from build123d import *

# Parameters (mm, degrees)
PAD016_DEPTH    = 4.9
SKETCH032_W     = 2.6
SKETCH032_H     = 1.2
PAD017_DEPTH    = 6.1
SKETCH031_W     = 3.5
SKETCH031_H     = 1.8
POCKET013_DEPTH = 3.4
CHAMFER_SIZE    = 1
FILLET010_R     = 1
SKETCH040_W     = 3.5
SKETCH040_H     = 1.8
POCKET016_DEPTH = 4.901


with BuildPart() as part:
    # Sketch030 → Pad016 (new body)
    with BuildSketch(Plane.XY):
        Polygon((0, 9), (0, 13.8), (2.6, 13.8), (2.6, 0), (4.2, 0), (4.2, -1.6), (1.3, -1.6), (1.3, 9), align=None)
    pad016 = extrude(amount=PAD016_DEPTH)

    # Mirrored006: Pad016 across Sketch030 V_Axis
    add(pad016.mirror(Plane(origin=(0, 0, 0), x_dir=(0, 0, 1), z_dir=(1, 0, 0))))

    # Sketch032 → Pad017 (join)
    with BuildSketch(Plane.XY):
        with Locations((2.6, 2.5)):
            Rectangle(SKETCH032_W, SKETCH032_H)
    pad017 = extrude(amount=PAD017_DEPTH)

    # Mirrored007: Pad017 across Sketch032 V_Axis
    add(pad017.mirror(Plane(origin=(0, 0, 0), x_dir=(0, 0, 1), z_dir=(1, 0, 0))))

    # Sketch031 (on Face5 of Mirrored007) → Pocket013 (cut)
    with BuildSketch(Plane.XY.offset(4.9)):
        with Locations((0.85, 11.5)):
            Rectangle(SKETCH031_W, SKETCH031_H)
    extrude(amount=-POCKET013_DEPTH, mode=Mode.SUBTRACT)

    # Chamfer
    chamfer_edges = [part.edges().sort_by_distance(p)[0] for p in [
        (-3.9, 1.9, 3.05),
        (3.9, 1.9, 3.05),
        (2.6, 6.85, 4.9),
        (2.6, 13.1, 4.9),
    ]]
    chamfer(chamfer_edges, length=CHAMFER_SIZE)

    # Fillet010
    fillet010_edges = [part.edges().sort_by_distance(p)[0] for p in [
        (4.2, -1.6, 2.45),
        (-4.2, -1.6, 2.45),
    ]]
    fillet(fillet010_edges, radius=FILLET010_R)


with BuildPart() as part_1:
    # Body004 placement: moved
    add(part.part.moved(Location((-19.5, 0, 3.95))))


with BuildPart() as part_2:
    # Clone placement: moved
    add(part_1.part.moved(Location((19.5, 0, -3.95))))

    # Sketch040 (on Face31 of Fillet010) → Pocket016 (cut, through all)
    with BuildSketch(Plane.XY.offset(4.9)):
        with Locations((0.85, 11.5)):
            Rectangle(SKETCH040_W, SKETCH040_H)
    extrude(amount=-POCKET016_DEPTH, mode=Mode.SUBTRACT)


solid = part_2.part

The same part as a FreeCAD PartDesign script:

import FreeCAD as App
import Part
import Sketcher
from FreeCAD import Vector


def edges_at(feature, points):
    """Names of the edges that pass closest to the given points."""
    edges = feature.Shape.Edges
    near = lambda p: min(range(len(edges)), key=lambda i: edges[i].distToShape(Part.Vertex(*p))[0])
    return sorted({f"Edge{near(p) + 1}" for p in points})


def add_polygon(sketch, points):
    """Adds a closed chain of lines whose ends are joined by coincident constraints."""
    first, n = sketch.GeometryCount, len(points)
    for a, b in zip(points, points[1:] + points[:1]):
        sketch.addGeometry(Part.LineSegment(App.Vector(*a, 0), App.Vector(*b, 0)), False)
    for i in range(n):
        sketch.addConstraint(Sketcher.Constraint("Coincident", first + i, 2, first + (i + 1) % n, 1))

doc = App.newDocument("Part")
body = doc.addObject("PartDesign::Body", "Body")

# Sketch on XY plane
sketch1 = doc.addObject("Sketcher::SketchObject", "Sketch")
body.addObject(sketch1)
sketch1.AttachmentSupport = (doc.XY_Plane, [""])
sketch1.MapMode = "FlatFace"
add_polygon(sketch1, [(0, 13.8), (0, 9), (1.3, 9), (1.3, -1.6), (4.2, -1.6), (4.2, 0), (2.6, 0), (2.6, 13.8)])  # lines 0-7
sketch1.addConstraint([
    Sketcher.Constraint("Vertical", 0),
    Sketcher.Constraint("Horizontal", 1),
    Sketcher.Constraint("Vertical", 2),
    Sketcher.Constraint("Horizontal", 3),
    Sketcher.Constraint("Vertical", 4),
    Sketcher.Constraint("Horizontal", 5),
    Sketcher.Constraint("Vertical", 6),
    Sketcher.Constraint("Horizontal", 7),
    Sketcher.Constraint("PointOnObject", 0, 2, -2),
    Sketcher.Constraint("PointOnObject", 4, 2, -1),
    Sketcher.Constraint("Equal", 5, 4),
    Sketcher.Constraint("DistanceX", 1, 1, 1, 2, 1.3),
    Sketcher.Constraint("DistanceX", 3, 1, 3, 2, 2.9),
    Sketcher.Constraint("DistanceX", 5, 2, 5, 1, 1.6),
    Sketcher.Constraint("DistanceY", 0, 2, 0, 1, 4.8),
    Sketcher.Constraint("DistanceY", 2, 2, 2, 1, 10.6),
])
pad1 = doc.addObject("PartDesign::Pad", "Pad")
body.addObject(pad1)
pad1.Profile = sketch1
pad1.Length = 4.9
doc.recompute()

mirrored = doc.addObject("PartDesign::Mirrored", "Mirrored")
body.addObject(mirrored)
mirrored.Originals = [pad1]
mirrored.MirrorPlane = (doc.YZ_Plane, [""])
body.Tip = mirrored

# Sketch on XY plane
sketch2 = doc.addObject("Sketcher::SketchObject", "Sketch001")
body.addObject(sketch2)
sketch2.AttachmentSupport = (doc.XY_Plane, [""])
sketch2.MapMode = "FlatFace"
add_polygon(sketch2, [(1.3, 3.1), (1.3, 1.9), (3.9, 1.9), (3.9, 3.1)])  # lines 0-3
sketch2.addConstraint([
    Sketcher.Constraint("Vertical", 0),
    Sketcher.Constraint("Horizontal", 1),
    Sketcher.Constraint("Vertical", 2),
    Sketcher.Constraint("Horizontal", 3),
    Sketcher.Constraint("DistanceX", 1, 1, 1, 2, 2.6),
    Sketcher.Constraint("DistanceY", 0, 2, 0, 1, 1.2),
    Sketcher.Constraint("DistanceX", -1, 1, 0, 2, 1.3),
    Sketcher.Constraint("DistanceY", -1, 1, 0, 2, 1.9),
])
pad2 = doc.addObject("PartDesign::Pad", "Pad001")
body.addObject(pad2)
pad2.Profile = sketch2
pad2.Length = 6.1
doc.recompute()

mirrored2 = doc.addObject("PartDesign::Mirrored", "Mirrored001")
body.addObject(mirrored2)
mirrored2.Originals = [pad2]
mirrored2.MirrorPlane = (doc.YZ_Plane, [""])
body.Tip = mirrored2

# Sketch on XY plane
sketch3 = doc.addObject("Sketcher::SketchObject", "Sketch002")
body.addObject(sketch3)
sketch3.AttachmentSupport = (doc.XY_Plane, [""])
sketch3.MapMode = "FlatFace"
sketch3.AttachmentOffset = App.Placement(Vector(0, 0, 4.9), App.Rotation())
add_polygon(sketch3, [(-0.9, 12.4), (-0.9, 10.6), (2.6, 10.6), (2.6, 12.4)])  # lines 0-3
sketch3.addConstraint([
    Sketcher.Constraint("Vertical", 0),
    Sketcher.Constraint("Horizontal", 1),
    Sketcher.Constraint("Vertical", 2),
    Sketcher.Constraint("Horizontal", 3),
    Sketcher.Constraint("DistanceX", 1, 1, 1, 2, 3.5),
    Sketcher.Constraint("DistanceY", 0, 2, 0, 1, 1.8),
    Sketcher.Constraint("DistanceX", 0, 2, -1, 1, 0.9),
    Sketcher.Constraint("DistanceY", -1, 1, 0, 2, 10.6),
])
pocket1 = doc.addObject("PartDesign::Pocket", "Pocket")
body.addObject(pocket1)
pocket1.Profile = sketch3
pocket1.Length = 3.4
doc.recompute()

chamfer = doc.addObject("PartDesign::Chamfer", "Chamfer")
body.addObject(chamfer)
chamfer.Base = (pocket1, edges_at(pocket1, [
    (-3.9, 1.9, 3.05),
    (3.9, 1.9, 3.05),
    (2.6, 6.85, 4.9),
    (2.6, 13.1, 4.9),
]))
chamfer.Size = 1
doc.recompute()

fillet = doc.addObject("PartDesign::Fillet", "Fillet")
body.addObject(fillet)
fillet.Base = (chamfer, edges_at(chamfer, [(4.2, -1.6, 2.45), (-4.2, -1.6, 2.45)]))
fillet.Radius = 1
body2 = doc.addObject("PartDesign::Body", "Body001")
doc.recompute()

body.Placement = App.Placement(Vector(-19.5, 0, 3.95), App.Rotation(Vector(0, 0, 1), 0))
boolean = doc.addObject("PartDesign::Boolean", "Boolean")
body2.addObject(boolean)
boolean.Type = "Fuse"
boolean.addObjects([body])
body3 = doc.addObject("PartDesign::Body", "Body002")
doc.recompute()

body2.Placement = App.Placement(Vector(19.5, 0, -3.95), App.Rotation(Vector(0, 0, 1), 0))
boolean2 = doc.addObject("PartDesign::Boolean", "Boolean001")
body3.addObject(boolean2)
boolean2.Type = "Fuse"
boolean2.addObjects([body2])

# Sketch on XY plane
sketch4 = doc.addObject("Sketcher::SketchObject", "Sketch003")
body3.addObject(sketch4)
sketch4.AttachmentSupport = (doc.getObject("XY_Plane002"), [""])
sketch4.MapMode = "FlatFace"
sketch4.AttachmentOffset = App.Placement(Vector(0, 0, 4.9), App.Rotation())
add_polygon(sketch4, [(-0.9, 12.4), (-0.9, 10.6), (2.6, 10.6), (2.6, 12.4)])  # lines 0-3
sketch4.addConstraint([
    Sketcher.Constraint("Vertical", 0),
    Sketcher.Constraint("Horizontal", 1),
    Sketcher.Constraint("Vertical", 2),
    Sketcher.Constraint("Horizontal", 3),
    Sketcher.Constraint("DistanceX", 1, 1, 1, 2, 3.5),
    Sketcher.Constraint("DistanceY", 0, 2, 0, 1, 1.8),
    Sketcher.Constraint("DistanceX", 0, 2, -1, 1, 0.9),
    Sketcher.Constraint("DistanceY", -1, 1, 0, 2, 10.6),
])
pocket2 = doc.addObject("PartDesign::Pocket", "Pocket001")
body3.addObject(pocket2)
pocket2.Profile = sketch4
pocket2.Type = "ThroughAll"

doc.recompute()
